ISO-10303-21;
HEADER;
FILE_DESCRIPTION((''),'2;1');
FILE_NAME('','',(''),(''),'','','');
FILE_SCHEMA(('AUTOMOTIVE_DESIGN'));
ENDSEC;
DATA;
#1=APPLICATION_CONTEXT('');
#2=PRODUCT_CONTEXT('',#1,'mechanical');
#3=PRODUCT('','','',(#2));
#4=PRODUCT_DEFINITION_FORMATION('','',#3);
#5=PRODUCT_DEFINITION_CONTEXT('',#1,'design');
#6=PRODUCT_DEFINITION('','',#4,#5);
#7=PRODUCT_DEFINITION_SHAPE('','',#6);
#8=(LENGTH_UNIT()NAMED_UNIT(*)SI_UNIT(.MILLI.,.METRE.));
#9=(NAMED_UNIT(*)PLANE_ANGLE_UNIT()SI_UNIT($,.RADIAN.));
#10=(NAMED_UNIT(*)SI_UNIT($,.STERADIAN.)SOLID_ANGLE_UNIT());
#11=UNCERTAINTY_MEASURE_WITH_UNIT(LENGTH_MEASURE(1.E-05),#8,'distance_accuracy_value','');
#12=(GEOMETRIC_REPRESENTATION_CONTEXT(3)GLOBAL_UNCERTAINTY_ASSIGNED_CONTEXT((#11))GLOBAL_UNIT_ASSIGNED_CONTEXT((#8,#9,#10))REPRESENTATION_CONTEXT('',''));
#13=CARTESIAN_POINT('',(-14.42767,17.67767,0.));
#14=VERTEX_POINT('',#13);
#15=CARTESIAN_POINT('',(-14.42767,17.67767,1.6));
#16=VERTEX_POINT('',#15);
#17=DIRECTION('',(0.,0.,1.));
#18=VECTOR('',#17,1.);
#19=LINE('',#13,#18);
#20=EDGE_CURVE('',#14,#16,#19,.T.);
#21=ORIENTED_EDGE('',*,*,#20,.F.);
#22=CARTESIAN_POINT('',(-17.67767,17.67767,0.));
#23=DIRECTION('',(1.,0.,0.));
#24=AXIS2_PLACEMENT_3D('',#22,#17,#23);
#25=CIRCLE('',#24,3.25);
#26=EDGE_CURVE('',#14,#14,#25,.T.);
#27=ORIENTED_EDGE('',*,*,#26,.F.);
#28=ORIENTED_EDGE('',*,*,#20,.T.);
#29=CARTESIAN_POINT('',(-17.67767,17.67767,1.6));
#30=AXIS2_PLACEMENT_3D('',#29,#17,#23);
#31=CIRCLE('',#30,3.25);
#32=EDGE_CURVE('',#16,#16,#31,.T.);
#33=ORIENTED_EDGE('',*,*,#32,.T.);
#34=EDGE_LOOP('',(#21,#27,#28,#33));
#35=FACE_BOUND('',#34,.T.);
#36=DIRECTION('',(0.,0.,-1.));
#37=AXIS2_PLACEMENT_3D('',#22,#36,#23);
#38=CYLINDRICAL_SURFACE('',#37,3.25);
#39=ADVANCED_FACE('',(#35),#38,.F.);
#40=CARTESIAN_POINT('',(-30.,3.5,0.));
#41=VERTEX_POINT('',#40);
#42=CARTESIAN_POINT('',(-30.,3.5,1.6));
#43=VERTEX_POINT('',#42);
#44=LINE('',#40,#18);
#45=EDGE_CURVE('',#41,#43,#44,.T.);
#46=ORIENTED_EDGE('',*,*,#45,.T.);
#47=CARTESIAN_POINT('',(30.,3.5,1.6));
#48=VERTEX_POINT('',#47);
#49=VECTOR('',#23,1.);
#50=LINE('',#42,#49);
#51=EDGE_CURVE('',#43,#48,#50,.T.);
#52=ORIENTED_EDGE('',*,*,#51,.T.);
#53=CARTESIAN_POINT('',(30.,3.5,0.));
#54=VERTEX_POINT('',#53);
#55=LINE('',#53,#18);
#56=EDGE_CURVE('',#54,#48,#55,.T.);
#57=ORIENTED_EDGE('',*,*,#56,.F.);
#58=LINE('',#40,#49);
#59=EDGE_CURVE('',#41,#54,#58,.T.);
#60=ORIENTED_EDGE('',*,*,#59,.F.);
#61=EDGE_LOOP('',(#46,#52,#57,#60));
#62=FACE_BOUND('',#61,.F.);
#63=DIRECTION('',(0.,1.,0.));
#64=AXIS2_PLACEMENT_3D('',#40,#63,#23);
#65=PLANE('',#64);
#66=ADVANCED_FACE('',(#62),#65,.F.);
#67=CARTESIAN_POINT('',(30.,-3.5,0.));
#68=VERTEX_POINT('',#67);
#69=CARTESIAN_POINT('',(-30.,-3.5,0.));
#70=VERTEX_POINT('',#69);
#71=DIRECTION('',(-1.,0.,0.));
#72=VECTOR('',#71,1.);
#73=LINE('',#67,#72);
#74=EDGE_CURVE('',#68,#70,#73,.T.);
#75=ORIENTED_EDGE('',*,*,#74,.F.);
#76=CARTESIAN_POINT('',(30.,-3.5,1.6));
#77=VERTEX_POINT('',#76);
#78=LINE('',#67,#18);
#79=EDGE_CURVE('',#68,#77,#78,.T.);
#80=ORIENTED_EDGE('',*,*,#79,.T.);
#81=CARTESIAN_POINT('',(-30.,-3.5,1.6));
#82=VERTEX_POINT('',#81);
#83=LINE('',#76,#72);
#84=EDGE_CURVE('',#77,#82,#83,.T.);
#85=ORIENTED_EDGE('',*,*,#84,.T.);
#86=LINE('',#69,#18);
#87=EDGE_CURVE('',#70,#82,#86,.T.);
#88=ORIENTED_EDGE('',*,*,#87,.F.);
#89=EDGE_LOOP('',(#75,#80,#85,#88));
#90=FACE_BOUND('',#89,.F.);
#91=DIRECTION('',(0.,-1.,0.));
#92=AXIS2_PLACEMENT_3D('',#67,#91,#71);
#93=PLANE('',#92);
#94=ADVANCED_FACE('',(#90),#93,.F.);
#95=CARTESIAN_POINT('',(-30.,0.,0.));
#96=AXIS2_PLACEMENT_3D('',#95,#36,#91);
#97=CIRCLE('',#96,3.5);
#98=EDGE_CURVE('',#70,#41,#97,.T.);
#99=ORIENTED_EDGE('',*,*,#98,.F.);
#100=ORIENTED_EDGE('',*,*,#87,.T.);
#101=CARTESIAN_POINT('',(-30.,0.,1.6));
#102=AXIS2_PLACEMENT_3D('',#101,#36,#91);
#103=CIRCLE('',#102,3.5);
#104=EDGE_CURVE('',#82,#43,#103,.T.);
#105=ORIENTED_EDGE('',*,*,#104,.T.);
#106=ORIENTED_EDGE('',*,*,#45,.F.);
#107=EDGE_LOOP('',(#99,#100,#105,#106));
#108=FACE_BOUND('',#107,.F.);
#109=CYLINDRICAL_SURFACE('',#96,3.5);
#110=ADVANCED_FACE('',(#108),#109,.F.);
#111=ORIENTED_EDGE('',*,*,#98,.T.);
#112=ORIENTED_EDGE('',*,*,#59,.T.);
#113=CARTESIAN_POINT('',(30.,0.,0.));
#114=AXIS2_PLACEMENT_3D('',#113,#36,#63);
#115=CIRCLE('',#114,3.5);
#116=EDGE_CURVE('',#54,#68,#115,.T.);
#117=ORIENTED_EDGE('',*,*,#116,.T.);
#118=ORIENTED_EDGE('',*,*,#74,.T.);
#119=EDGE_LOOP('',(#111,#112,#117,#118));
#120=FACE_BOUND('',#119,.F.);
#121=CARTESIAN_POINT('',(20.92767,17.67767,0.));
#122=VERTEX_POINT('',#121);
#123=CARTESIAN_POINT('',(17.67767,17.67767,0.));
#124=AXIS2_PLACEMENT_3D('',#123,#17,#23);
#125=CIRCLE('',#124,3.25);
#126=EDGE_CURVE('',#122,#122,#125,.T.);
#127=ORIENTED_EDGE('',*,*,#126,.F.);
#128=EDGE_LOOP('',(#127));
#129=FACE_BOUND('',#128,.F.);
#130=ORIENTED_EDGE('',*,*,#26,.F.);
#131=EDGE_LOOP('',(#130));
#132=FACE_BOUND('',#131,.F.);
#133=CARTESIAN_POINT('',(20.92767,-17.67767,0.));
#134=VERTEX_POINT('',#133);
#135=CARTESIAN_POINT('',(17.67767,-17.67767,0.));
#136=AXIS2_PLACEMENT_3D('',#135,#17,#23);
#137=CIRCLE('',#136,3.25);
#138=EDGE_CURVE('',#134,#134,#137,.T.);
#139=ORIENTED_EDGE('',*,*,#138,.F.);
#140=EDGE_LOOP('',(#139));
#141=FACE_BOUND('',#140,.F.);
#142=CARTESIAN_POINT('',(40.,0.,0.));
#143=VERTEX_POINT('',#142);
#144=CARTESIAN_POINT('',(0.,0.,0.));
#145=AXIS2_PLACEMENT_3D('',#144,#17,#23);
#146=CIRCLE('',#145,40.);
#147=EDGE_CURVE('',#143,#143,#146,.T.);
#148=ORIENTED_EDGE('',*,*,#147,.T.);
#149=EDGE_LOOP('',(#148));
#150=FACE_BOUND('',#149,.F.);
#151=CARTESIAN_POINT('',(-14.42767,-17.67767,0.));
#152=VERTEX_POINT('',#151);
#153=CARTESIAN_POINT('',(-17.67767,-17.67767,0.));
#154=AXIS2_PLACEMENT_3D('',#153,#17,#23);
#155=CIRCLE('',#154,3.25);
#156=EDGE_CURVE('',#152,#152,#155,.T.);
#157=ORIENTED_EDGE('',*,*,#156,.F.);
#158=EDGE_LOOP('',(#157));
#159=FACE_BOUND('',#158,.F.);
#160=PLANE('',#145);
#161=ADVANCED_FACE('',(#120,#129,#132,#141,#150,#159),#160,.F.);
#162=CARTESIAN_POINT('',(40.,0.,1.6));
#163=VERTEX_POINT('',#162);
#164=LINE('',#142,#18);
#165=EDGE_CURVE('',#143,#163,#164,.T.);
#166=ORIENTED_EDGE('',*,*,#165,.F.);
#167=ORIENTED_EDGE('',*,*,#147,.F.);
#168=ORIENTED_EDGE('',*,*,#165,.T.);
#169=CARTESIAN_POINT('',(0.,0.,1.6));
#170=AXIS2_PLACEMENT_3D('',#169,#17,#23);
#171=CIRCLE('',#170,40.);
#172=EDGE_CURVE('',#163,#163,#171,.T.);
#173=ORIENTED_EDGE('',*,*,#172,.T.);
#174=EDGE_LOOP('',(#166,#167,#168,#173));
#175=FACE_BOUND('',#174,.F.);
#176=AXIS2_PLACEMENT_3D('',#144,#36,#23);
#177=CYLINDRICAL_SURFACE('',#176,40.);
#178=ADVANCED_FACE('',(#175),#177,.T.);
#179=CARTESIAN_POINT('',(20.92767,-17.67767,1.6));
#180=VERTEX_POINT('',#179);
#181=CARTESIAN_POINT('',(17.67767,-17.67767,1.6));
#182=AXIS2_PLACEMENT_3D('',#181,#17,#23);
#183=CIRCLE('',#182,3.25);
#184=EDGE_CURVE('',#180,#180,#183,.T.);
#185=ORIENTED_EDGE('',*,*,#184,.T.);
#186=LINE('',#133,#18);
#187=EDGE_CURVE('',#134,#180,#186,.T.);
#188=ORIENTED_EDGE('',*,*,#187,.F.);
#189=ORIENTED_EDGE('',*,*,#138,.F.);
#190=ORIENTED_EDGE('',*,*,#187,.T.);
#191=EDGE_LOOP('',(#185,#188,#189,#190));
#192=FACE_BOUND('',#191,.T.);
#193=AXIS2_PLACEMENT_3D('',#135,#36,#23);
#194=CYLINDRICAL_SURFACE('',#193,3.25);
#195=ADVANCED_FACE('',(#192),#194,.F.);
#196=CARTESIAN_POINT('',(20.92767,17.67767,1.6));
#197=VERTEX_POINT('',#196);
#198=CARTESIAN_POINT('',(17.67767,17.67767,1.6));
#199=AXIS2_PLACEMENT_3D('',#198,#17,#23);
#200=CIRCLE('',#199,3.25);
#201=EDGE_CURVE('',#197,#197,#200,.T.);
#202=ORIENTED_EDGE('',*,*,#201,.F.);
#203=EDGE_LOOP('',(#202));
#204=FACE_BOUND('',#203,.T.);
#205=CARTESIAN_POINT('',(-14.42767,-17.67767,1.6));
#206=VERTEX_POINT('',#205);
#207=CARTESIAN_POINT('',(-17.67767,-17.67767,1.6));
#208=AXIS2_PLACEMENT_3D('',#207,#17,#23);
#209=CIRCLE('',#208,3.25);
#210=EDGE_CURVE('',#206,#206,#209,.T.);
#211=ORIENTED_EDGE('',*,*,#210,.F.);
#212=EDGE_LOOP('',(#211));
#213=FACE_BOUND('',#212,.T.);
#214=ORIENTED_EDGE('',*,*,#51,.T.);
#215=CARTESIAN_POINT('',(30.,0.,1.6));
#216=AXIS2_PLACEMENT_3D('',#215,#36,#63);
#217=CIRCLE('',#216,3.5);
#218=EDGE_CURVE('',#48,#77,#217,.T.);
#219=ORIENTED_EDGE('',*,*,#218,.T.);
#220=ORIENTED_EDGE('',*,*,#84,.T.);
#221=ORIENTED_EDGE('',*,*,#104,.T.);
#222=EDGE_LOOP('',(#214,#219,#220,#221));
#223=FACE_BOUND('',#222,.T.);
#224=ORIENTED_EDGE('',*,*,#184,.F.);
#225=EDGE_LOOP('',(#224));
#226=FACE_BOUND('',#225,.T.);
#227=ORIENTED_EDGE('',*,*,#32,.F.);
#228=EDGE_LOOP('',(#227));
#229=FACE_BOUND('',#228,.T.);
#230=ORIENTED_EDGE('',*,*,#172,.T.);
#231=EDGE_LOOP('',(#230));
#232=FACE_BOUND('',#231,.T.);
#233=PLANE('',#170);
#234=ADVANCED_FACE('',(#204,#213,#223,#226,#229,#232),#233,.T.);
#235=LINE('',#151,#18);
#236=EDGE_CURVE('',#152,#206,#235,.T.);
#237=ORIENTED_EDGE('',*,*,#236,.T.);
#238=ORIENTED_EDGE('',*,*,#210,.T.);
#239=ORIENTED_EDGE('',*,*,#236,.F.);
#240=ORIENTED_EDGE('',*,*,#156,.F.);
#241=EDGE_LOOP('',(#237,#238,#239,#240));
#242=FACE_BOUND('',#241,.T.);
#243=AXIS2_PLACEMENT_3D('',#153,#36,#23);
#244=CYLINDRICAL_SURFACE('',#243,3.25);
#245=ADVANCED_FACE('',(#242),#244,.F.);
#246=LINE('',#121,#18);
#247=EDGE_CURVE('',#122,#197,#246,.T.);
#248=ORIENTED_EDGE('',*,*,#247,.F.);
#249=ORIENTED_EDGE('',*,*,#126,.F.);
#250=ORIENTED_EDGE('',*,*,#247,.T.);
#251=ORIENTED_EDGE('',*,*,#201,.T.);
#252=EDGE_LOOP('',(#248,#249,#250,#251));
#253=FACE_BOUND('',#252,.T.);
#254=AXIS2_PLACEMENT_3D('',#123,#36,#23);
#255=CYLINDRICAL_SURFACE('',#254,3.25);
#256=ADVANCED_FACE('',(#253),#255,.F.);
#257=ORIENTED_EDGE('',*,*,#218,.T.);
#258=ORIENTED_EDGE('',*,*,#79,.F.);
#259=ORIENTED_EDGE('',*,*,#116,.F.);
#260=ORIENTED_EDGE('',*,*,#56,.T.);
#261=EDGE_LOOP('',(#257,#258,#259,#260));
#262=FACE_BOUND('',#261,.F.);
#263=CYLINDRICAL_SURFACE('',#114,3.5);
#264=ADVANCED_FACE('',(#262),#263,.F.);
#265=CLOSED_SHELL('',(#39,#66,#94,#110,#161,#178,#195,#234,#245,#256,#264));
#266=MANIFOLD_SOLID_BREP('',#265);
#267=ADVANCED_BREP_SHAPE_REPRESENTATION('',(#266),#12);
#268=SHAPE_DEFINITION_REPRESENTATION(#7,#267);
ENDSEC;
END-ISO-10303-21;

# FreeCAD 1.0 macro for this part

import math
import FreeCAD as App
import Part
import Sketcher
from FreeCAD import Vector
Q = App.Units.Quantity

doc = App.newDocument("Part")
body = doc.addObject("PartDesign::Body", "Body")

# Sketch on XY plane
sketch1 = body.newObject("Sketcher::SketchObject", "Sketch")
sketch1.AttachmentSupport = (doc.getObject("XY_Plane"), [""])
sketch1.MapMode = "FlatFace"
sketch1.addGeometry([
    Part.Circle(Vector(0, 0, 0), Vector(0, 0, 1), 40),  # 0
    Part.Circle(Vector(-17.7, -17.7, 0), Vector(0, 0, 1), 3.2),  # 1
    Part.Circle(Vector(17.7, -17.7, 0), Vector(0, 0, 1), 3.2),  # 2
    Part.Circle(Vector(-17.7, 17.7, 0), Vector(0, 0, 1), 3.2),  # 3
    Part.LineSegment(Vector(30, -3.5, 0), Vector(-30, -3.5, 0)),  # 4
    Part.ArcOfCircle(Part.Circle(Vector(-30, 0, 0), Vector(0, 0, 1), 3.5), math.radians(90), math.radians(270)),  # 5
    Part.LineSegment(Vector(-30, 3.5, 0), Vector(30, 3.5, 0)),  # 6
    Part.ArcOfCircle(Part.Circle(Vector(30, 0, 0), Vector(0, 0, 1), 3.5), math.radians(-90), math.radians(90)),  # 7
    Part.Circle(Vector(17.7, 17.7, 0), Vector(0, 0, 1), 3.2),  # 8
], False)
sketch1.addConstraint([
    Sketcher.Constraint("Tangent", 4, 2, 5, 2),
    Sketcher.Constraint("Tangent", 5, 1, 6, 1),
    Sketcher.Constraint("Tangent", 6, 2, 7, 2),
    Sketcher.Constraint("Tangent", 7, 1, 4, 1),
    Sketcher.Constraint("Horizontal", 4),
    Sketcher.Constraint("Horizontal", 6),
    Sketcher.Constraint("Coincident", 0, 3, -1, 1),
    Sketcher.Constraint("Equal", 1, 2),
    Sketcher.Constraint("Equal", 2, 3),
    Sketcher.Constraint("Equal", 3, 8),
    Sketcher.Constraint("Symmetric", 2, 3, 3, 3, -1, 1),
    Sketcher.Constraint("Symmetric", 5, 3, 7, 3, -1, 1),
    Sketcher.Constraint("Symmetric", 1, 3, 8, 3, -1, 1),
    Sketcher.Constraint("Symmetric", 1, 3, 2, 3, -2),
    Sketcher.Constraint("Diameter", 0, Q("80 mm")),
    Sketcher.Constraint("Diameter", 1, Q("6.5 mm")),
    Sketcher.Constraint("Radius", 5, Q("3.5 mm")),
    Sketcher.Constraint("DistanceX", 4, 2, 4, 1, Q("60 mm")),
    Sketcher.Constraint("DistanceX", 1, 3, -1, 1, Q("17.67767 mm")),
    Sketcher.Constraint("DistanceY", 1, 3, -1, 1, Q("17.67767 mm")),
])
pad1 = body.newObject("PartDesign::Pad", "Pad")
pad1.Profile = sketch1
pad1.Length = 1.6

doc.recompute()
